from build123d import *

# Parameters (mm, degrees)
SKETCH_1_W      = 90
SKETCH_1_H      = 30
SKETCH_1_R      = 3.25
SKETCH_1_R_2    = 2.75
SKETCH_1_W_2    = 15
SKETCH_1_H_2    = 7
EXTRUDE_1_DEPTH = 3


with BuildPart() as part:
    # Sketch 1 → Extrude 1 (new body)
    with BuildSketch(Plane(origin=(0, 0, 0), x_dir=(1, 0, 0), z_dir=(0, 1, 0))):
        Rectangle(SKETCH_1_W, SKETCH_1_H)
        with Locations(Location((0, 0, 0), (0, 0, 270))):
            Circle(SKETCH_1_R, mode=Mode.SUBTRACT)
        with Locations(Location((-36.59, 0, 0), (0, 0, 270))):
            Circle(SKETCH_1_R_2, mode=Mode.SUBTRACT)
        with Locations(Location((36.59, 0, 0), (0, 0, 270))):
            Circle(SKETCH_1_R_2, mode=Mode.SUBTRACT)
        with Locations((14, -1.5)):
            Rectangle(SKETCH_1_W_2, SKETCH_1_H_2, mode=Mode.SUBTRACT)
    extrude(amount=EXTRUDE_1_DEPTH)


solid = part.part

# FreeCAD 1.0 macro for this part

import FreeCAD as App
import Part
import Sketcher
from FreeCAD import Vector


def add_polygon(sketch, points):
    """Adds a closed chain of lines whose ends are joined by coincident constraints."""
    first, n = sketch.GeometryCount, len(points)
    for a, b in zip(points, points[1:] + points[:1]):
        sketch.addGeometry(Part.LineSegment(App.Vector(*a, 0), App.Vector(*b, 0)), False)
    for i in range(n):
        sketch.addConstraint(Sketcher.Constraint("Coincident", first + i, 2, first + (i + 1) % n, 1))

doc = App.newDocument("Part")
body = doc.addObject("PartDesign::Body", "Body")

sketch1 = doc.addObject("Sketcher::SketchObject", "Sketch")
body.addObject(sketch1)
sketch1.AttachmentSupport = (doc.XZ_Plane, [""])
sketch1.MapMode = "FlatFace"
add_polygon(sketch1, [(-45, -15), (-45, 15), (45, 15), (45, -15)])
add_polygon(sketch1, [(21.5, 5), (6.5, 5), (6.5, -2), (21.5, -2)])
sketch1.addGeometry(Part.Circle(Vector(-36.6, 0, 0), Vector(0, 0, 1), 2.8), False)
sketch1.addGeometry(Part.Circle(Vector(0, 0, 0), Vector(0, 0, 1), 3.2), False)
sketch1.addGeometry(Part.Circle(Vector(36.6, 0, 0), Vector(0, 0, 1), 2.8), False)
sketch1.addConstraint([
    Sketcher.Constraint("Vertical", 0),
    Sketcher.Constraint("Horizontal", 1),
    Sketcher.Constraint("Vertical", 2),
    Sketcher.Constraint("Horizontal", 3),
    Sketcher.Constraint("Horizontal", 4),
    Sketcher.Constraint("Vertical", 5),
    Sketcher.Constraint("Horizontal", 6),
    Sketcher.Constraint("Vertical", 7),
    Sketcher.Constraint("Coincident", 9, 3, -1, 1),
    Sketcher.Constraint("Equal", 8, 10),
    Sketcher.Constraint("Symmetric", 8, 3, 10, 3, -1, 1),
    Sketcher.Constraint("Symmetric", 0, 2, 2, 2, -1, 1),
    Sketcher.Constraint("PointOnObject", 8, 3, -1),
    Sketcher.Constraint("Diameter", 8, 5.5),
    Sketcher.Constraint("Diameter", 9, 6.5),
    Sketcher.Constraint("DistanceX", 1, 1, 1, 2, 90.0),
    Sketcher.Constraint("DistanceX", 4, 2, 4, 1, 15.0),
    Sketcher.Constraint("DistanceY", 0, 1, 0, 2, 30.0),
    Sketcher.Constraint("DistanceY", 5, 2, 5, 1, 7.0),
    Sketcher.Constraint("DistanceY", -1, 1, 4, 2, 5.0),
    Sketcher.Constraint("DistanceX", -1, 1, 4, 2, 6.5),
    Sketcher.Constraint("DistanceX", 8, 3, -1, 1, 36.59),
])
pad1 = doc.addObject("PartDesign::Pad", "Pad")
body.addObject(pad1)
pad1.Profile = sketch1
pad1.Length = 3
pad1.Reversed = True

doc.recompute()
